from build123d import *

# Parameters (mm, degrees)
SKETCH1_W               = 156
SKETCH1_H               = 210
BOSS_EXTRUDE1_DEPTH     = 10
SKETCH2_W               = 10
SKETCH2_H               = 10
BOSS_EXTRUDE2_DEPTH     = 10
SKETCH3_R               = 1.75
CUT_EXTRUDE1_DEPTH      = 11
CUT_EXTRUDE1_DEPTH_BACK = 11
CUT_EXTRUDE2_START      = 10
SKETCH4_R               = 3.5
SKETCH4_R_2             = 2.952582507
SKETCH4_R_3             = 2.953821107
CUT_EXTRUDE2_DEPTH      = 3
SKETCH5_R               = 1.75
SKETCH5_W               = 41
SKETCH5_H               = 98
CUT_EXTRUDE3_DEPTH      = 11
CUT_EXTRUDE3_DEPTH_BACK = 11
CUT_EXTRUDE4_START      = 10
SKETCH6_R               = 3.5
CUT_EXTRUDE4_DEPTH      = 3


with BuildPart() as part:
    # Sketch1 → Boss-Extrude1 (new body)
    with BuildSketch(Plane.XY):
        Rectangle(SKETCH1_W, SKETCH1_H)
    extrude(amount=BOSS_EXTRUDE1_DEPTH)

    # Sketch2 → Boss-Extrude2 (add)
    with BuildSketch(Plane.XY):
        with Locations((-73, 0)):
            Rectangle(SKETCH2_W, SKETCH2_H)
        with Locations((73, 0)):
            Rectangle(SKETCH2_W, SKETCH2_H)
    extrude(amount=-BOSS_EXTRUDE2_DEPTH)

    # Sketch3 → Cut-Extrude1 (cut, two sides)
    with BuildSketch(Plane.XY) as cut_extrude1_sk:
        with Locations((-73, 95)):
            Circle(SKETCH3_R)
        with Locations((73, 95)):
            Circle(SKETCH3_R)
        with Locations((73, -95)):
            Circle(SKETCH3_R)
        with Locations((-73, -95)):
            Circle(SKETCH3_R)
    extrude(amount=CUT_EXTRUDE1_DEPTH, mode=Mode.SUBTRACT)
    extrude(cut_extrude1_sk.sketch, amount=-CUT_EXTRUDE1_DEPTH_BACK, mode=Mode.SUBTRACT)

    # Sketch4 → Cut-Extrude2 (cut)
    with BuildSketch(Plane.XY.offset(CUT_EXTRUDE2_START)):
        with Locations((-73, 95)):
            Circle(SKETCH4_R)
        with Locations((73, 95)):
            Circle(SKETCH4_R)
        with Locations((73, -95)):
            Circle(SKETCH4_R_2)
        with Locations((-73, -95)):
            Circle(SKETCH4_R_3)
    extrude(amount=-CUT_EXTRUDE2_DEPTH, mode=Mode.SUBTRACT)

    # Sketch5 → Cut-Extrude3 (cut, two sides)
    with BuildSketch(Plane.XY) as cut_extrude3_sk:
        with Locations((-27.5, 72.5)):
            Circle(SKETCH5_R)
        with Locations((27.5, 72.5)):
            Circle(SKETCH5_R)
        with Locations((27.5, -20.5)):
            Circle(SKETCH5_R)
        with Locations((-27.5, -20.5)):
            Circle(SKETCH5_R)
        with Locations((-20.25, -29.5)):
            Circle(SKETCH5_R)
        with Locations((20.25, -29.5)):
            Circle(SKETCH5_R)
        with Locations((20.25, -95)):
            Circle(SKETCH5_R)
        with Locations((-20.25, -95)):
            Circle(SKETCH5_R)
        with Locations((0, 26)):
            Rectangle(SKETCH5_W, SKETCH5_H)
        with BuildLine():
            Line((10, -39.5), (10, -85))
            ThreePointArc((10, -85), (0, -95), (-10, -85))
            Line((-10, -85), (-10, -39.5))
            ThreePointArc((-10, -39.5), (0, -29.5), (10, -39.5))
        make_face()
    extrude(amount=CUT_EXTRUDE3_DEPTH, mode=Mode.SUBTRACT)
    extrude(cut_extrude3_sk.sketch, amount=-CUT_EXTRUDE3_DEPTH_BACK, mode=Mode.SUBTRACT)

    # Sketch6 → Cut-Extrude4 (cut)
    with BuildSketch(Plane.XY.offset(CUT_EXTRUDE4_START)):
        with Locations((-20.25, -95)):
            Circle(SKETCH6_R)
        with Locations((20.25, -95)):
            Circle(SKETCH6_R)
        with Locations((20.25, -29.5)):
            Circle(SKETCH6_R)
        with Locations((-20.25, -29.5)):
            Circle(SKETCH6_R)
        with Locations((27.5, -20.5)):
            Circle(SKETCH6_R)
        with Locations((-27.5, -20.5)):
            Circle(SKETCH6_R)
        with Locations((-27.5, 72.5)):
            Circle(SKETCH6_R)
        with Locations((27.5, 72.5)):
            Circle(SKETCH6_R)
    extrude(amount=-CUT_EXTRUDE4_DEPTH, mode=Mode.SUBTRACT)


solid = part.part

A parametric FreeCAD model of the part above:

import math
import FreeCAD as App
import Part
import Sketcher
from FreeCAD import Vector

doc = App.newDocument("Part")
body = doc.addObject("PartDesign::Body", "Body")

# Sketch on XY plane
sketch1 = body.newObject("Sketcher::SketchObject", "Sketch")
sketch1.AttachmentSupport = (doc.getObject("XY_Plane"), [""])
sketch1.MapMode = "FlatFace"
sketch1.addGeometry([
    Part.LineSegment(Vector(-78, 105, 0), Vector(-78, -105, 0)),
    Part.LineSegment(Vector(-78, -105, 0), Vector(78, -105, 0)),
    Part.LineSegment(Vector(78, -105, 0), Vector(78, 105, 0)),
    Part.LineSegment(Vector(78, 105, 0), Vector(-78, 105, 0)),
], False)
sketch1.addConstraint([
    Sketcher.Constraint("Coincident", 0, 2, 1, 1),
    Sketcher.Constraint("Coincident", 1, 2, 2, 1),
    Sketcher.Constraint("Coincident", 2, 2, 3, 1),
    Sketcher.Constraint("Coincident", 3, 2, 0, 1),
    Sketcher.Constraint("Vertical", 0),
    Sketcher.Constraint("Horizontal", 1),
    Sketcher.Constraint("Vertical", 2),
    Sketcher.Constraint("Horizontal", 3),
    Sketcher.Constraint("Symmetric", 0, 2, 2, 2, -1, 1),
    Sketcher.Constraint("DistanceX", 1, 1, 1, 2, 156.0),
    Sketcher.Constraint("DistanceY", 0, 2, 0, 1, 210.0),
])
pad1 = body.newObject("PartDesign::Pad", "Pad")
pad1.Profile = sketch1
pad1.Length = 10

# Sketch on XY plane
sketch2 = body.newObject("Sketcher::SketchObject", "Sketch001")
sketch2.AttachmentSupport = (doc.getObject("XY_Plane"), [""])
sketch2.MapMode = "FlatFace"
sketch2.addGeometry([
    Part.LineSegment(Vector(-78, 5, 0), Vector(-78, -5, 0)),  # 0
    Part.LineSegment(Vector(-78, -5, 0), Vector(-68, -5, 0)),  # 1
    Part.LineSegment(Vector(-68, -5, 0), Vector(-68, 5, 0)),  # 2
    Part.LineSegment(Vector(-68, 5, 0), Vector(-78, 5, 0)),  # 3
    Part.LineSegment(Vector(68, 5, 0), Vector(68, -5, 0)),  # 4
    Part.LineSegment(Vector(68, -5, 0), Vector(78, -5, 0)),  # 5
    Part.LineSegment(Vector(78, -5, 0), Vector(78, 5, 0)),  # 6
    Part.LineSegment(Vector(78, 5, 0), Vector(68, 5, 0)),  # 7
], False)
sketch2.addConstraint([
    Sketcher.Constraint("Coincident", 0, 2, 1, 1),
    Sketcher.Constraint("Coincident", 1, 2, 2, 1),
    Sketcher.Constraint("Coincident", 2, 2, 3, 1),
    Sketcher.Constraint("Coincident", 3, 2, 0, 1),
    Sketcher.Constraint("Coincident", 4, 2, 5, 1),
    Sketcher.Constraint("Coincident", 5, 2, 6, 1),
    Sketcher.Constraint("Coincident", 6, 2, 7, 1),
    Sketcher.Constraint("Coincident", 7, 2, 4, 1),
    Sketcher.Constraint("Vertical", 0),
    Sketcher.Constraint("Horizontal", 1),
    Sketcher.Constraint("Vertical", 2),
    Sketcher.Constraint("Horizontal", 3),
    Sketcher.Constraint("Vertical", 4),
    Sketcher.Constraint("Horizontal", 5),
    Sketcher.Constraint("Vertical", 6),
    Sketcher.Constraint("Horizontal", 7),
    Sketcher.Constraint("Symmetric", 2, 2, 4, 2, -1, 1),
    Sketcher.Constraint("Symmetric", 0, 2, 6, 2, -1, 1),
    Sketcher.Constraint("Horizontal", 1, 2, 4, 2),
    Sketcher.Constraint("Equal", 7, 0),
    Sketcher.Constraint("DistanceX", 1, 1, 1, 2, 10.0),
    Sketcher.Constraint("DistanceX", 0, 2, -1, 1, 78.0),
])
pad2 = body.newObject("PartDesign::Pad", "Pad001")
pad2.Profile = sketch2
pad2.Length = 10
pad2.Reversed = True

# Sketch on XY plane
sketch3 = body.newObject("Sketcher::SketchObject", "Sketch002")
sketch3.AttachmentSupport = (doc.getObject("XY_Plane"), [""])
sketch3.MapMode = "FlatFace"
sketch3.addGeometry([
    Part.Circle(Vector(-73, 95, 0), Vector(0, 0, 1), 1.8),
    Part.Circle(Vector(73, 95, 0), Vector(0, 0, 1), 1.8),
    Part.Circle(Vector(73, -95, 0), Vector(0, 0, 1), 1.8),
    Part.Circle(Vector(-73, -95, 0), Vector(0, 0, 1), 1.8),
], False)
sketch3.addConstraint([
    Sketcher.Constraint("Equal", 0, 1),
    Sketcher.Constraint("Equal", 1, 2),
    Sketcher.Constraint("Equal", 2, 3),
    Sketcher.Constraint("Symmetric", 0, 3, 2, 3, -1, 1),
    Sketcher.Constraint("Symmetric", 1, 3, 3, 3, -1, 1),
    Sketcher.Constraint("Symmetric", 0, 3, 1, 3, -2),
    Sketcher.Constraint("Diameter", 0, 3.5),
    Sketcher.Constraint("DistanceX", 0, 3, -1, 1, 73.0),
    Sketcher.Constraint("DistanceY", -1, 1, 0, 3, 95.0),
])
pocket1 = body.newObject("PartDesign::Pocket", "Pocket")
pocket1.Profile = sketch3
pocket1.Type = "ThroughAll"
pocket1.Midplane = True

# Sketch on XY plane
sketch4 = body.newObject("Sketcher::SketchObject", "Sketch003")
sketch4.AttachmentSupport = (doc.getObject("XY_Plane"), [""])
sketch4.MapMode = "FlatFace"
sketch4.AttachmentOffset = App.Placement(Vector(0, 0, 10), App.Rotation())
sketch4.addGeometry([
    Part.Circle(Vector(-73, 95, 0), Vector(0, 0, 1), 3.5),
    Part.Circle(Vector(73, 95, 0), Vector(0, 0, 1), 3.5),
    Part.Circle(Vector(73, -95, 0), Vector(0, 0, 1), 3),
    Part.Circle(Vector(-73, -95, 0), Vector(0, 0, 1), 3),
], False)
sketch4.addConstraint([
    Sketcher.Constraint("Equal", 0, 1),
    Sketcher.Constraint("Symmetric", 0, 3, 2, 3, -1, 1),
    Sketcher.Constraint("Symmetric", 1, 3, 3, 3, -1, 1),
    Sketcher.Constraint("Symmetric", 0, 3, 1, 3, -2),
    Sketcher.Constraint("Diameter", 0, 7.0),
    Sketcher.Constraint("DistanceX", 0, 3, -1, 1, 73.0),
    Sketcher.Constraint("DistanceY", -1, 1, 0, 3, 95.0),
    Sketcher.Constraint("Diameter", 2, 5.905165),
    Sketcher.Constraint("Diameter", 3, 5.907642),
])
pocket2 = body.newObject("PartDesign::Pocket", "Pocket001")
pocket2.Profile = sketch4
pocket2.Length = 3

# Sketch on XY plane
sketch5 = body.newObject("Sketcher::SketchObject", "Sketch004")
sketch5.AttachmentSupport = (doc.getObject("XY_Plane"), [""])
sketch5.MapMode = "FlatFace"
sketch5.addGeometry([
    Part.Circle(Vector(-27.5, 72.5, 0), Vector(0, 0, 1), 1.8),  # 0
    Part.Circle(Vector(27.5, 72.5, 0), Vector(0, 0, 1), 1.8),  # 1
    Part.Circle(Vector(27.5, -20.5, 0), Vector(0, 0, 1), 1.8),  # 2
    Part.Circle(Vector(-27.5, -20.5, 0), Vector(0, 0, 1), 1.8),  # 3
    Part.Circle(Vector(-20.2, -29.5, 0), Vector(0, 0, 1), 1.8),  # 4
    Part.Circle(Vector(20.2, -29.5, 0), Vector(0, 0, 1), 1.8),  # 5
    Part.Circle(Vector(20.2, -95, 0), Vector(0, 0, 1), 1.8),  # 6
    Part.Circle(Vector(-20.2, -95, 0), Vector(0, 0, 1), 1.8),  # 7
    Part.LineSegment(Vector(-20.5, 75, 0), Vector(-20.5, -23, 0)),  # 8
    Part.LineSegment(Vector(-20.5, -23, 0), Vector(20.5, -23, 0)),  # 9
    Part.LineSegment(Vector(20.5, -23, 0), Vector(20.5, 75, 0)),  # 10
    Part.LineSegment(Vector(20.5, 75, 0), Vector(-20.5, 75, 0)),  # 11
    Part.LineSegment(Vector(10, -85, 0), Vector(10, -39.5, 0)),  # 12
    Part.ArcOfCircle(Part.Circle(Vector(0, -39.5, 0), Vector(0, 0, 1), 10), math.radians(0), math.radians(180)),  # 13
    Part.LineSegment(Vector(-10, -39.5, 0), Vector(-10, -85, 0)),  # 14
    Part.ArcOfCircle(Part.Circle(Vector(0, -85, 0), Vector(0, 0, 1), 10), math.radians(180), math.radians(360)),  # 15
], False)
sketch5.addConstraint([
    Sketcher.Constraint("Coincident", 8, 2, 9, 1),
    Sketcher.Constraint("Coincident", 9, 2, 10, 1),
    Sketcher.Constraint("Coincident", 10, 2, 11, 1),
    Sketcher.Constraint("Coincident", 11, 2, 8, 1),
    Sketcher.Constraint("Tangent", 12, 2, 13, 1),
    Sketcher.Constraint("Tangent", 13, 2, 14, 1),
    Sketcher.Constraint("Tangent", 14, 2, 15, 1),
    Sketcher.Constraint("Tangent", 15, 2, 12, 1),
    Sketcher.Constraint("Vertical", 8),
    Sketcher.Constraint("Horizontal", 9),
    Sketcher.Constraint("Vertical", 10),
    Sketcher.Constraint("Horizontal", 11),
    Sketcher.Constraint("Vertical", 12),
    Sketcher.Constraint("Vertical", 14),
    Sketcher.Constraint("Equal", 0, 1),
    Sketcher.Constraint("Equal", 1, 2),
    Sketcher.Constraint("Equal", 2, 3),
    Sketcher.Constraint("Equal", 3, 4),
    Sketcher.Constraint("Equal", 4, 5),
    Sketcher.Constraint("Equal", 5, 6),
    Sketcher.Constraint("Equal", 6, 7),
    Sketcher.Constraint("Symmetric", 0, 3, 1, 3, -2),
    Sketcher.Constraint("Symmetric", 2, 3, 3, 3, -2),
    Sketcher.Constraint("Symmetric", 4, 3, 5, 3, -2),
    Sketcher.Constraint("Symmetric", 6, 3, 7, 3, -2),
    Sketcher.Constraint("PointOnObject", 13, 3, -2),
    Sketcher.Constraint("Vertical", 1, 3, 2, 3),
    Sketcher.Constraint("Vertical", 5, 3, 6, 3),
    Sketcher.Constraint("Radius", 13, 10.0),
    Sketcher.Constraint("Diameter", 0, 3.5),
    Sketcher.Constraint("DistanceX", 9, 1, 9, 2, 41.0),
    Sketcher.Constraint("DistanceY", 8, 2, 8, 1, 98.0),
    Sketcher.Constraint("DistanceY", 12, 1, 12, 2, 45.5),
    Sketcher.Constraint("DistanceY", 6, 3, -1, 1, 95.0),
    Sketcher.Constraint("DistanceY", 15, 3, -1, 1, 85.0),
    Sketcher.Constraint("DistanceY", 8, 2, -1, 1, 23.0),
    Sketcher.Constraint("DistanceX", 0, 3, 1, 3, 55.0),
    Sketcher.Constraint("DistanceY", 2, 3, 1, 3, 93.0),
    Sketcher.Constraint("DistanceY", 4, 3, 3, 3, 9.0),
    Sketcher.Constraint("DistanceY", 13, 3, 4, 3, 10.0),
    Sketcher.Constraint("DistanceX", 3, 3, 8, 2, 7.0),
    Sketcher.Constraint("DistanceX", 4, 3, 5, 3, 40.5),
])
pocket3 = body.newObject("PartDesign::Pocket", "Pocket002")
pocket3.Profile = sketch5
pocket3.Type = "ThroughAll"
pocket3.Midplane = True

# Sketch on XY plane
sketch6 = body.newObject("Sketcher::SketchObject", "Sketch005")
sketch6.AttachmentSupport = (doc.getObject("XY_Plane"), [""])
sketch6.MapMode = "FlatFace"
sketch6.AttachmentOffset = App.Placement(Vector(0, 0, 10), App.Rotation())
sketch6.addGeometry([
    Part.Circle(Vector(-20.2, -95, 0), Vector(0, 0, 1), 3.5),  # 0
    Part.Circle(Vector(20.2, -95, 0), Vector(0, 0, 1), 3.5),  # 1
    Part.Circle(Vector(20.2, -29.5, 0), Vector(0, 0, 1), 3.5),  # 2
    Part.Circle(Vector(-20.2, -29.5, 0), Vector(0, 0, 1), 3.5),  # 3
    Part.Circle(Vector(27.5, -20.5, 0), Vector(0, 0, 1), 3.5),  # 4
    Part.Circle(Vector(-27.5, -20.5, 0), Vector(0, 0, 1), 3.5),  # 5
    Part.Circle(Vector(-27.5, 72.5, 0), Vector(0, 0, 1), 3.5),  # 6
    Part.Circle(Vector(27.5, 72.5, 0), Vector(0, 0, 1), 3.5),  # 7
], False)
sketch6.addConstraint([
    Sketcher.Constraint("Equal", 0, 1),
    Sketcher.Constraint("Equal", 1, 2),
    Sketcher.Constraint("Equal", 2, 3),
    Sketcher.Constraint("Equal", 3, 4),
    Sketcher.Constraint("Equal", 4, 5),
    Sketcher.Constraint("Equal", 5, 6),
    Sketcher.Constraint("Equal", 6, 7),
    Sketcher.Constraint("Symmetric", 0, 3, 1, 3, -2),
    Sketcher.Constraint("Symmetric", 2, 3, 3, 3, -2),
    Sketcher.Constraint("Symmetric", 4, 3, 5, 3, -2),
    Sketcher.Constraint("Symmetric", 6, 3, 7, 3, -2),
    Sketcher.Constraint("Vertical", 1, 3, 2, 3),
    Sketcher.Constraint("Vertical", 5, 3, 6, 3),
    Sketcher.Constraint("Diameter", 0, 7.0),
    Sketcher.Constraint("DistanceY", 0, 3, -1, 1, 95.0),
    Sketcher.Constraint("DistanceY", 2, 3, 4, 3, 9.0),
    Sketcher.Constraint("DistanceX", 5, 3, 4, 3, 55.0),
    Sketcher.Constraint("DistanceY", 5, 3, 6, 3, 93.0),
    Sketcher.Constraint("DistanceY", 2, 3, -1, 1, 29.5),
    Sketcher.Constraint("DistanceX", 0, 3, 1, 3, 40.5),
])
pocket4 = body.newObject("PartDesign::Pocket", "Pocket003")
pocket4.Profile = sketch6
pocket4.Length = 3

doc.recompute()
